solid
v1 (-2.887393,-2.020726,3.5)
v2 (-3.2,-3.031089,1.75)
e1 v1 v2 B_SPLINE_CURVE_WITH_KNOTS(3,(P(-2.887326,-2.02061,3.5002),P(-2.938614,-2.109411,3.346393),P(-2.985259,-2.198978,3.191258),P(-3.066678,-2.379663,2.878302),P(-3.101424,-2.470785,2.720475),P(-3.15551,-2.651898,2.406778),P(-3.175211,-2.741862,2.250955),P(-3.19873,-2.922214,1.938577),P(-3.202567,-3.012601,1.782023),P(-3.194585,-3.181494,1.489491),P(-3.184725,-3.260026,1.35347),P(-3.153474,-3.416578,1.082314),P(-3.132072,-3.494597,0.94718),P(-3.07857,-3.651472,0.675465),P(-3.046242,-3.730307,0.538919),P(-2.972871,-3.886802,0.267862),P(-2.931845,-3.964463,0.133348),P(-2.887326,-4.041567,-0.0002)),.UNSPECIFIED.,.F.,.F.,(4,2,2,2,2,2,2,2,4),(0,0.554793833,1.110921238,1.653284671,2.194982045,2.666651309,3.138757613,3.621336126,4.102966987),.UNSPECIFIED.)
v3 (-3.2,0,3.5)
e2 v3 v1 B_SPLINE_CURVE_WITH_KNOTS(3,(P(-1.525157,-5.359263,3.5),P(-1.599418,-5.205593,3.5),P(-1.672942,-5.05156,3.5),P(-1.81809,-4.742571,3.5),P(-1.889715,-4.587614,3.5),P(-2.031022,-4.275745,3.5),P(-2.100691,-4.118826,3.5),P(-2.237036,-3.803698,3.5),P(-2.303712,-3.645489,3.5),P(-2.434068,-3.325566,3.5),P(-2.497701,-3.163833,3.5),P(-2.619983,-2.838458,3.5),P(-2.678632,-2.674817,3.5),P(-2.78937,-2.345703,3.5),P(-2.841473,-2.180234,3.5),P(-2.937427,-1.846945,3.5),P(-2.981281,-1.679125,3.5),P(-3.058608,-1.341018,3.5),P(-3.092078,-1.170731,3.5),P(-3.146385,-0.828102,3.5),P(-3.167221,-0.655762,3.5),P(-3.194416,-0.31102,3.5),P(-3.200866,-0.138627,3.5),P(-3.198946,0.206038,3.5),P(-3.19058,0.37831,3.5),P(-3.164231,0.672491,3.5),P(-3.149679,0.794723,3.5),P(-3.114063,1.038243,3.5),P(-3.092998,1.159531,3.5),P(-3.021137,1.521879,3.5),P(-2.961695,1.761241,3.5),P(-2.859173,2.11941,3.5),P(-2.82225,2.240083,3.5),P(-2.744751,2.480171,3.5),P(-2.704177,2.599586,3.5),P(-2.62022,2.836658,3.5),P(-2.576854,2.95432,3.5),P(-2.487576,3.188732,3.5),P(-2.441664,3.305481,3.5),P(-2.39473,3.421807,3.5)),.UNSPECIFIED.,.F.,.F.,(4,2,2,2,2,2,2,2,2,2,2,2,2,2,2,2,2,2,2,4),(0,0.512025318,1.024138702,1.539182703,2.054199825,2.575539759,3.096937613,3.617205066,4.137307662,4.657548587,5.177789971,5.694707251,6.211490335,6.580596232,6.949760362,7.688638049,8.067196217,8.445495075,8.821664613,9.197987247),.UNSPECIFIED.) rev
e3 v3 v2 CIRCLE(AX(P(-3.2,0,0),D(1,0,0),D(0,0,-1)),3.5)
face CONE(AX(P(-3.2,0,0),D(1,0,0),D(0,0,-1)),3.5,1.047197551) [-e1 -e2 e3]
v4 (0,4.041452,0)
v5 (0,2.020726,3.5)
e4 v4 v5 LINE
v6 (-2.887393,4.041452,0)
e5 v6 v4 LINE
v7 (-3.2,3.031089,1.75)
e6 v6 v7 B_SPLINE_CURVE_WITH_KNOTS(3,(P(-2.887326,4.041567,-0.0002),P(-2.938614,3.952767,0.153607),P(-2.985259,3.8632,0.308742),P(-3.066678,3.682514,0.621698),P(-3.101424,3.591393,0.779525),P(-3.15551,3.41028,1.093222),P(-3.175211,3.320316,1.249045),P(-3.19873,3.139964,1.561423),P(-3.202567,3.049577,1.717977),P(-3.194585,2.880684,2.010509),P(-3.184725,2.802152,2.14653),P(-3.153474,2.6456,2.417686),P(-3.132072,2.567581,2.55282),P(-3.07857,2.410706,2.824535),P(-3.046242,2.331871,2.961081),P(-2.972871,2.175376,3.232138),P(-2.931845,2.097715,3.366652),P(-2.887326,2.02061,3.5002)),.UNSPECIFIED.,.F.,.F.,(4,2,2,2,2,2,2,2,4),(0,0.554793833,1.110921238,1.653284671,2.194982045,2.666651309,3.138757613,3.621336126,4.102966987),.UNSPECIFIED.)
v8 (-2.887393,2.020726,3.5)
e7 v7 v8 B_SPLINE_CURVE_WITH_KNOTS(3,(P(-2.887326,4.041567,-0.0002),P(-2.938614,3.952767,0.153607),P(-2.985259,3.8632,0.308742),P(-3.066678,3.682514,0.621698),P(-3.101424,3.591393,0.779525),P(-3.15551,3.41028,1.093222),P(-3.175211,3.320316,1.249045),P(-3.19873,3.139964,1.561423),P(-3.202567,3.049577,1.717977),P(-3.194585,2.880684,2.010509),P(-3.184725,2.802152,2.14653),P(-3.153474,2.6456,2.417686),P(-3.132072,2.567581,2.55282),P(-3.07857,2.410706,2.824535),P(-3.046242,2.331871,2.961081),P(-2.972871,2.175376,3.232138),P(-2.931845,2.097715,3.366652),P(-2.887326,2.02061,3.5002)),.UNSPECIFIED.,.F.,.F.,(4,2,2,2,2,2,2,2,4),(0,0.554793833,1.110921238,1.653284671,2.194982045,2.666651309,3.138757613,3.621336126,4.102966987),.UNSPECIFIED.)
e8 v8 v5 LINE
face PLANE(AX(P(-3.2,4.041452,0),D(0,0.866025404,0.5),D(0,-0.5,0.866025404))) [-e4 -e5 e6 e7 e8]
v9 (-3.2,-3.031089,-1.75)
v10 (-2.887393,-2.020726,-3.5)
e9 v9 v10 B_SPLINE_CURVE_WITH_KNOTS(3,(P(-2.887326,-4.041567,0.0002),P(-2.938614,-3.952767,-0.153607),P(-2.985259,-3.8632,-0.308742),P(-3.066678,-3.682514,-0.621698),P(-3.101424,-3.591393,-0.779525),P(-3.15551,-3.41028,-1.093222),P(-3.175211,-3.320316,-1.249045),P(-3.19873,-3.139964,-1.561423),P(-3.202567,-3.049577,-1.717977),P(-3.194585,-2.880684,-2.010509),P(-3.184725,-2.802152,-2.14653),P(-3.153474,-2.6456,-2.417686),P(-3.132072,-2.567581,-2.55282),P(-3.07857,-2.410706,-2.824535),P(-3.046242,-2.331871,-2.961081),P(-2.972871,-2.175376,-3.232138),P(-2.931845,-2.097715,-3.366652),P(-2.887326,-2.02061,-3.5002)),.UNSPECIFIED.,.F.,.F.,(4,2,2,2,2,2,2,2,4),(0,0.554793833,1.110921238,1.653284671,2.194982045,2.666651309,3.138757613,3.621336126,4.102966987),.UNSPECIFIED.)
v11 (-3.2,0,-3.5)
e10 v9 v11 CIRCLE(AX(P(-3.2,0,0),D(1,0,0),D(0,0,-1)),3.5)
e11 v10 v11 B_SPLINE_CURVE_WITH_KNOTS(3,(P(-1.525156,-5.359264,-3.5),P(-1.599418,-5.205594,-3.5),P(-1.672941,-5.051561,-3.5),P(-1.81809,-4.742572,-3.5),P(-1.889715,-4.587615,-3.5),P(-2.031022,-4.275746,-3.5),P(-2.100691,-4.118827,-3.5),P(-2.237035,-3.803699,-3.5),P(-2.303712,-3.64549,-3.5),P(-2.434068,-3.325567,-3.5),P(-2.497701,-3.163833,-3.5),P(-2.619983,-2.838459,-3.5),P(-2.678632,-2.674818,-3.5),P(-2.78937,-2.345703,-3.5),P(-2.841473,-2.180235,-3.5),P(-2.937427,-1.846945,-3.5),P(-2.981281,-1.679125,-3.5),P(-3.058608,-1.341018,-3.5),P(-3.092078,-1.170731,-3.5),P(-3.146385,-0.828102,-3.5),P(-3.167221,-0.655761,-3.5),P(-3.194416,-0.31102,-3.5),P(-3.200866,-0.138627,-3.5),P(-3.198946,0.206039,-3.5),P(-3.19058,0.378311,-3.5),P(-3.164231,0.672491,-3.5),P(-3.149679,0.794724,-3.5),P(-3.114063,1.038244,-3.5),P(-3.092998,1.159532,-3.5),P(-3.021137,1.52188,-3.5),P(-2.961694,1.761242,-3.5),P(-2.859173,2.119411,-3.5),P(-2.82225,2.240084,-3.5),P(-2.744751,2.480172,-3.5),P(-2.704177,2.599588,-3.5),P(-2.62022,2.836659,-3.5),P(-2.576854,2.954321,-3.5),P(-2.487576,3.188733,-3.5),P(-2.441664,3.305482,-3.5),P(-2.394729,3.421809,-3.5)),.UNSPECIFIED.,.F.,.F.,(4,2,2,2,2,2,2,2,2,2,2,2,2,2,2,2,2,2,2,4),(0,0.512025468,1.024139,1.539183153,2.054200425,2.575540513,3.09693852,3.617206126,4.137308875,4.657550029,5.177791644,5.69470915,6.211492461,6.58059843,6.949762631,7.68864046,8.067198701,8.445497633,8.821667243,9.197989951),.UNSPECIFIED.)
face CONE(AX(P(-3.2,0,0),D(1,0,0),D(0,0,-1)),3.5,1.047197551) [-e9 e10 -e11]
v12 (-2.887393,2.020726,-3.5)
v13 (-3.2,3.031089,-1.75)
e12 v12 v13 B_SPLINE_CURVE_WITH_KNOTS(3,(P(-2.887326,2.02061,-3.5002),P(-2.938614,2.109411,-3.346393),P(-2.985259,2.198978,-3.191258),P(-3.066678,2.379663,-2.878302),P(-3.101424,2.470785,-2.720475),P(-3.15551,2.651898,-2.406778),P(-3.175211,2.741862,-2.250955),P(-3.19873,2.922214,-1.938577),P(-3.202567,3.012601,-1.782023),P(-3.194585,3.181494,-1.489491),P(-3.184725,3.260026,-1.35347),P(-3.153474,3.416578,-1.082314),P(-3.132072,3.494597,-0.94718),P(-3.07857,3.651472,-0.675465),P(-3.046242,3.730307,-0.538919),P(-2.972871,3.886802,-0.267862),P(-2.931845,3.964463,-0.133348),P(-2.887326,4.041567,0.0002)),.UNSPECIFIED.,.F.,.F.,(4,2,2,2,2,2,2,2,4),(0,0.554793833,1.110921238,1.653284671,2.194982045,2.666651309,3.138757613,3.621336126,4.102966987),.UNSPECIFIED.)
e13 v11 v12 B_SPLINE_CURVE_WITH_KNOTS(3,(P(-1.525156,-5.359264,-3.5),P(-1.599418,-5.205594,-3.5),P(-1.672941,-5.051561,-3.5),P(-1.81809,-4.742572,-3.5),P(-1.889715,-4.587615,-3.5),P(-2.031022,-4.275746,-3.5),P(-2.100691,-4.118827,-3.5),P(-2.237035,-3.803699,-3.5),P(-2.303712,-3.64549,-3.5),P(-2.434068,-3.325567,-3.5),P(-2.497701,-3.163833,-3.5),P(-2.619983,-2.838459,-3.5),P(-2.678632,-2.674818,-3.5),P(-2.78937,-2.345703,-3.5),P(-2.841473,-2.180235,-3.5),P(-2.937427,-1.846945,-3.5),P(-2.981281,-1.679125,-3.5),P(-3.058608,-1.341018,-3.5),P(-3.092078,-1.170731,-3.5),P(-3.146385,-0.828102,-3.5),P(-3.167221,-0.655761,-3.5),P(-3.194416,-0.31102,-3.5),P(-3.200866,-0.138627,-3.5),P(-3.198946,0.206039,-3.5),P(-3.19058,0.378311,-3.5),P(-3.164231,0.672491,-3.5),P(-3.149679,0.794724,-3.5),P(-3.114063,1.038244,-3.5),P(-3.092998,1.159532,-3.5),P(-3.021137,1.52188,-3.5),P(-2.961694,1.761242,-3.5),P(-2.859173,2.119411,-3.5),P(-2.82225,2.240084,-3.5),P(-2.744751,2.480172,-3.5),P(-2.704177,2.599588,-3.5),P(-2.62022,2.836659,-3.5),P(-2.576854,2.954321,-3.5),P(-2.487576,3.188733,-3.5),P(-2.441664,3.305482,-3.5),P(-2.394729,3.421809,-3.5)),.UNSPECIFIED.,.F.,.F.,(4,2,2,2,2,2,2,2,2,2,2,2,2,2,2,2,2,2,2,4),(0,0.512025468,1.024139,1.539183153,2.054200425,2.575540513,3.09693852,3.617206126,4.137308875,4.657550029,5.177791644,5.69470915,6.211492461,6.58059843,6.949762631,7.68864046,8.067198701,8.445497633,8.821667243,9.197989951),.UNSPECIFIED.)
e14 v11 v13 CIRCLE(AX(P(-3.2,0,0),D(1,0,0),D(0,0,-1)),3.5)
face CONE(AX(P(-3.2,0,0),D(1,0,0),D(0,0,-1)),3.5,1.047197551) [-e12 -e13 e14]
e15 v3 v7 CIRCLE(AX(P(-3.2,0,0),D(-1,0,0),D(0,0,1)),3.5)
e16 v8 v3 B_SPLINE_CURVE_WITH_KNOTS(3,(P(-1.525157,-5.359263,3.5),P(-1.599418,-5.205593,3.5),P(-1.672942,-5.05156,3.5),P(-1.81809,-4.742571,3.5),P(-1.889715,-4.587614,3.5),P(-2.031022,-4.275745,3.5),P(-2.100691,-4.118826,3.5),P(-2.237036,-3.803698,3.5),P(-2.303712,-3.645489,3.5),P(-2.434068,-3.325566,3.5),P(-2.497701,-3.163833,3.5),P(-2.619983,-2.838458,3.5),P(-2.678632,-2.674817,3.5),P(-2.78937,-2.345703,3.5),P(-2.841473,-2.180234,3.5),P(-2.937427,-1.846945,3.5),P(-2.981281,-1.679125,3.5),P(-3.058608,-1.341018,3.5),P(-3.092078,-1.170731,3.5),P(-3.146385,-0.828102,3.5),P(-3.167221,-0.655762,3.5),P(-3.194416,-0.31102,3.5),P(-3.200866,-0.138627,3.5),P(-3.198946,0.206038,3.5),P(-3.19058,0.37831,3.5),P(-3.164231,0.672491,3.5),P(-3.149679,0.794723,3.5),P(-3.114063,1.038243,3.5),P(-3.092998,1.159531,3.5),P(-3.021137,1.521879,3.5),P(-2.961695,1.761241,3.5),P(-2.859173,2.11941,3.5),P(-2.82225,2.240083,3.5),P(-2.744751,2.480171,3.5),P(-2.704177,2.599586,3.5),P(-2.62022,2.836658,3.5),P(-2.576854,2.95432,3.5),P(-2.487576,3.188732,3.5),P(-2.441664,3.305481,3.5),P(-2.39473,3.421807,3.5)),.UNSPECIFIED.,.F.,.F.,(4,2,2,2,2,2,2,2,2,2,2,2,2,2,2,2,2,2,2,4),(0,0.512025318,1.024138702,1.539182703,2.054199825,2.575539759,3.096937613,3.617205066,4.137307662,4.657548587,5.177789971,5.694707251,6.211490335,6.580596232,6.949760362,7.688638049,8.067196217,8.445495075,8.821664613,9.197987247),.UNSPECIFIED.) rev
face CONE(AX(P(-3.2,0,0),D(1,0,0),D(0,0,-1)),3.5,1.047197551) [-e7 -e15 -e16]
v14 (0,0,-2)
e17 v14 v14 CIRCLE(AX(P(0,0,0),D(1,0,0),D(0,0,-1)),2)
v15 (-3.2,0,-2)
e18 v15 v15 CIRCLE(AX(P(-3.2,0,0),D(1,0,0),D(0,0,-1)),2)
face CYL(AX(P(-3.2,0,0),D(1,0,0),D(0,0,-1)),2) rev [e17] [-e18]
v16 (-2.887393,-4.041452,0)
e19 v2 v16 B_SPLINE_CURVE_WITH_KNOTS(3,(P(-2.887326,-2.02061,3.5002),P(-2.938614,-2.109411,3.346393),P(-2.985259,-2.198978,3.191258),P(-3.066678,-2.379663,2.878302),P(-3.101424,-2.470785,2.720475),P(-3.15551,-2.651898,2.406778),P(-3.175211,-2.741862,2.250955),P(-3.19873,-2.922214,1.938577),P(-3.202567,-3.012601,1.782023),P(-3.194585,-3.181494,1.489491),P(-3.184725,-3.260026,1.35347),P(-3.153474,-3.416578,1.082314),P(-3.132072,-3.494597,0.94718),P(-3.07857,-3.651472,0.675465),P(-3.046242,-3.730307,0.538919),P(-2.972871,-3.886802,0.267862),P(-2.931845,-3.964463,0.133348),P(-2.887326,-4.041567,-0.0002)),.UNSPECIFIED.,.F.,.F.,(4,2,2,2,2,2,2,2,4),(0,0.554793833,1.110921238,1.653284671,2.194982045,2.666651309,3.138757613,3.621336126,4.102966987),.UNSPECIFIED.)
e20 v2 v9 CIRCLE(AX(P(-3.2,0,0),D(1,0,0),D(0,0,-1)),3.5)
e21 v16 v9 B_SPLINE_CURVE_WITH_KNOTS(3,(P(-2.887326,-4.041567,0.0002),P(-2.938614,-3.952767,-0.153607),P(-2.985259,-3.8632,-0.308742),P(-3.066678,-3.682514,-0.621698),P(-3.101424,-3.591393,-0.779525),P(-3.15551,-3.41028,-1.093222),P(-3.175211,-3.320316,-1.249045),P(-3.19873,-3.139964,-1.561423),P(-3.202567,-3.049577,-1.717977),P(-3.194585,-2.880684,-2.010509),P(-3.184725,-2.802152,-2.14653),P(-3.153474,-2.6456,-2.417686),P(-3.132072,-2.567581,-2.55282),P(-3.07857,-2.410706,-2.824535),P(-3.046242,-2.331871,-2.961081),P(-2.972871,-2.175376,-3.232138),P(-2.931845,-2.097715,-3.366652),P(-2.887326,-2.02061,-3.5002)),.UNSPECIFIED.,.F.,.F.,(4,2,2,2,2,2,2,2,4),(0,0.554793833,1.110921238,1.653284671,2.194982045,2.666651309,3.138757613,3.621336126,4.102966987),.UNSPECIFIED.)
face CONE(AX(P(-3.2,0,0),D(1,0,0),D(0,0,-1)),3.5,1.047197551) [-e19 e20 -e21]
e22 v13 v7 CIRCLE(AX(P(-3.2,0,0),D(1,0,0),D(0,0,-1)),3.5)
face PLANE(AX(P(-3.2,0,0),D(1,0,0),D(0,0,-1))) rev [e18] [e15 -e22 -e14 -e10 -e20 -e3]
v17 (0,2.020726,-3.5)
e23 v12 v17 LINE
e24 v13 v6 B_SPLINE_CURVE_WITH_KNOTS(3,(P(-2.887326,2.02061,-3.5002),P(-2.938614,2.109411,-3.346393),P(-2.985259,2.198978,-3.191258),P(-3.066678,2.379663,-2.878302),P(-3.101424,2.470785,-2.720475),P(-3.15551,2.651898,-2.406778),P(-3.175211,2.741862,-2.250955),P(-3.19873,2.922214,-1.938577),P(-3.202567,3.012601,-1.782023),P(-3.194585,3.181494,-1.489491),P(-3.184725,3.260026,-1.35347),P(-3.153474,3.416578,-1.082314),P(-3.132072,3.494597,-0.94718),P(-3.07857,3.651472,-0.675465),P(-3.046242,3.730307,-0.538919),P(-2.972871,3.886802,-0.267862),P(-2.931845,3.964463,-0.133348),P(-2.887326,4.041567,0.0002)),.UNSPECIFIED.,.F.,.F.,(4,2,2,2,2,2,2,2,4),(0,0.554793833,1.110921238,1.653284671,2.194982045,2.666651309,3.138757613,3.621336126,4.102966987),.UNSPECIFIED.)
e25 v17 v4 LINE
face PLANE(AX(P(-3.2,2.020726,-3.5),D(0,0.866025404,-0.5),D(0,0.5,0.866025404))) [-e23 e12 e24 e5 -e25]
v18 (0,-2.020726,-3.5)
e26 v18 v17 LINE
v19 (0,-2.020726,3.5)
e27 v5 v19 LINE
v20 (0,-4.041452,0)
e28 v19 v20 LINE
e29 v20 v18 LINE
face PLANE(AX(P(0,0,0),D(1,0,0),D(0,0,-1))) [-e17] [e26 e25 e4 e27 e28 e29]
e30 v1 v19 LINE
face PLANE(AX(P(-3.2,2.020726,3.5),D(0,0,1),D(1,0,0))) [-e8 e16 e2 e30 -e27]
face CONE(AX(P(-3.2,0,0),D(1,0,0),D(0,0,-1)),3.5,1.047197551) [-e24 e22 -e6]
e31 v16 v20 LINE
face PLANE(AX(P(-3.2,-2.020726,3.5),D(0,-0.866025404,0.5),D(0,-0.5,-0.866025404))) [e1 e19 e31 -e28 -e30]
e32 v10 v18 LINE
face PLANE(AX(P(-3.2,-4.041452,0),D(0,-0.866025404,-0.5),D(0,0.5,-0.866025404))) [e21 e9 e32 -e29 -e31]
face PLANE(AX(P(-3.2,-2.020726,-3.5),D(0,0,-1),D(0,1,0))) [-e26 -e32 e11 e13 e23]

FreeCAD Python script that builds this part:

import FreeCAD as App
import Part
import Sketcher

V = App.Vector
Q = App.Units.Quantity


def add_polygon(sketch, points):
    """Adds a closed chain of lines whose ends are joined by coincident constraints."""
    first, n = sketch.GeometryCount, len(points)
    for a, b in zip(points, points[1:] + points[:1]):
        sketch.addGeometry(Part.LineSegment(App.Vector(*a, 0), App.Vector(*b, 0)), False)
    for i in range(n):
        sketch.addConstraint(Sketcher.Constraint("Coincident", first + i, 2, first + (i + 1) % n, 1))

doc = App.newDocument("Part")
params = doc.addObject("Spreadsheet::Sheet", "Params")
for row, (alias, value) in enumerate([
    ("pad1_length", "3.2 mm"),
    ("groove_angle", "360 deg"),
    ("sketch3_diameter", "4 mm"),
], start=1):
    params.set(f"A{row}", alias)
    params.set(f"B{row}", "=" + value)
    params.setAlias(f"B{row}", alias)

body = doc.addObject("PartDesign::Body", "Body")

sketch1 = doc.addObject("Sketcher::SketchObject", "Sketch")
body.addObject(sketch1)
sketch1.AttachmentSupport = (doc.YZ_Plane, [""])
sketch1.MapMode = "FlatFace"
add_polygon(sketch1, [(4, 0), (2, 3.5), (-2, 3.5), (-4, 0), (-2, -3.5), (2, -3.5)])
sketch1.addConstraint([
    Sketcher.Constraint("Horizontal", 1),
    Sketcher.Constraint("Horizontal", 4),
    Sketcher.Constraint("Symmetric", 0, 2, 3, 2, -1, 1),
    Sketcher.Constraint("Symmetric", 2, 2, 5, 2, -1, 1),
    Sketcher.Constraint("PointOnObject", 2, 2, -1),
    Sketcher.Constraint("Parallel", 2, 5),
    Sketcher.Constraint("Vertical", 1, 2, 3, 2),
    Sketcher.Constraint("Angle", 0, Q("120 deg")),
    Sketcher.Constraint("DistanceY", 3, 2, 1, 2, 7.0),
    Sketcher.Constraint("DistanceX", 1, 2, 1, 1, 4.041452),
])
pad1 = doc.addObject("PartDesign::Pad", "Pad")
body.addObject(pad1)
pad1.Profile = sketch1
pad1.setExpression("Length", "Params.pad1_length")
pad1.Reversed = True

sketch2 = doc.addObject("Sketcher::SketchObject", "Sketch001")
body.addObject(sketch2)
sketch2.AttachmentSupport = (doc.XY_Plane, [""])
sketch2.MapMode = "FlatFace"
add_polygon(sketch2, [(-3.2, 3.5), (-2.89, 4.04), (-3.2, 4.04)])
sketch2.addConstraint([
    Sketcher.Constraint("Horizontal", 1),
    Sketcher.Constraint("Vertical", 2),
    Sketcher.Constraint("Angle", 0, Q("60 deg")),
    Sketcher.Constraint("DistanceX", 1, 2, -1, 1, 3.2),
    Sketcher.Constraint("DistanceY", -1, 1, 2, 2, 3.5),
    Sketcher.Constraint("DistanceY", 2, 2, 2, 1, 0.541452),
])
groove = doc.addObject("PartDesign::Groove", "Groove")
body.addObject(groove)
groove.Profile = sketch2
groove.ReferenceAxis = (sketch2, ["H_Axis"])
groove.setExpression("Angle", "Params.groove_angle")

sketch3 = doc.addObject("Sketcher::SketchObject", "Sketch002")
body.addObject(sketch3)
sketch3.AttachmentSupport = (doc.YZ_Plane, [""])
sketch3.MapMode = "FlatFace"
sketch3.addGeometry(Part.Circle(V(0, 0, 0), V(0, 0, 1), 2), False)
sketch3.addConstraint([
    Sketcher.Constraint("Coincident", 0, 3, -1, 1),
    Sketcher.Constraint("Diameter", 0, 4.0),
])
sketch3.setExpression("Constraints[1]", "Params.sketch3_diameter")
pocket1 = doc.addObject("PartDesign::Pocket", "Pocket")
body.addObject(pocket1)
pocket1.Profile = sketch3
pocket1.Type = "ThroughAll"

doc.recompute()
